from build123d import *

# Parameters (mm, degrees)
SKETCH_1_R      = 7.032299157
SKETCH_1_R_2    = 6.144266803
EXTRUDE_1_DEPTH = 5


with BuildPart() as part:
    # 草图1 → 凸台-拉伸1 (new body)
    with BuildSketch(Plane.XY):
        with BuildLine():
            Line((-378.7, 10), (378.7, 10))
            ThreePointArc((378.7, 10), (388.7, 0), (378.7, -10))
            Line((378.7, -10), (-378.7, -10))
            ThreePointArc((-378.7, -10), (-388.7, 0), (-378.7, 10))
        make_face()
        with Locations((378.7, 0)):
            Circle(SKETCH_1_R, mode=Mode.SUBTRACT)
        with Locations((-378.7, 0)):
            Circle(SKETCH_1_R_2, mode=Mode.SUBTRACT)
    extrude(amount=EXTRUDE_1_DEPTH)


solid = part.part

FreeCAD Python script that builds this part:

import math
import FreeCAD as App
import Part
import Sketcher

V = App.Vector
Q = App.Units.Quantity

doc = App.newDocument("Part")
body = doc.addObject("PartDesign::Body", "Body")

# Sketch on XY plane
sketch1 = body.newObject("Sketcher::SketchObject", "Sketch")
sketch1.AttachmentSupport = (doc.getObject("XY_Plane"), [""])
sketch1.MapMode = "FlatFace"
sketch1.addGeometry(Part.LineSegment(V(379, 10, 0), V(-379, 10, 0)), False)
sketch1.addGeometry(Part.ArcOfCircle(Part.Circle(V(-379, 0, 0), V(0, 0, 1), 10), math.radians(90), math.radians(270)), False)
sketch1.addGeometry(Part.LineSegment(V(-379, -10, 0), V(379, -10, 0)), False)
sketch1.addGeometry(Part.ArcOfCircle(Part.Circle(V(379, 0, 0), V(0, 0, 1), 10), math.radians(-90), math.radians(90)), False)
sketch1.addGeometry(Part.Circle(V(379, 0, 0), V(0, 0, 1), 7), False)
sketch1.addGeometry(Part.Circle(V(-379, 0, 0), V(0, 0, 1), 6), False)
sketch1.addConstraint(Sketcher.Constraint("Tangent", 0, 2, 1, 1))
sketch1.addConstraint(Sketcher.Constraint("Tangent", 1, 2, 2, 1))
sketch1.addConstraint(Sketcher.Constraint("Tangent", 2, 2, 3, 1))
sketch1.addConstraint(Sketcher.Constraint("Tangent", 3, 2, 0, 1))
sketch1.addConstraint(Sketcher.Constraint("Horizontal", 0))
sketch1.addConstraint(Sketcher.Constraint("Horizontal", 2))
sketch1.addConstraint(Sketcher.Constraint("Coincident", 4, 3, 3, 3))
sketch1.addConstraint(Sketcher.Constraint("Coincident", 5, 3, 1, 3))
sketch1.addConstraint(Sketcher.Constraint("Symmetric", 1, 3, 3, 3, -1, 1))
sketch1.addConstraint(Sketcher.Constraint("Radius", 1, Q("10 mm")))
sketch1.addConstraint(Sketcher.Constraint("DistanceX", 0, 2, 0, 1, Q("757.4 mm")))
sketch1.addConstraint(Sketcher.Constraint("Diameter", 4, Q("14.064598 mm")))
sketch1.addConstraint(Sketcher.Constraint("Diameter", 5, Q("12.288534 mm")))
pad1 = body.newObject("PartDesign::Pad", "Pad")
pad1.Profile = sketch1
pad1.Length = 5

doc.recompute()
